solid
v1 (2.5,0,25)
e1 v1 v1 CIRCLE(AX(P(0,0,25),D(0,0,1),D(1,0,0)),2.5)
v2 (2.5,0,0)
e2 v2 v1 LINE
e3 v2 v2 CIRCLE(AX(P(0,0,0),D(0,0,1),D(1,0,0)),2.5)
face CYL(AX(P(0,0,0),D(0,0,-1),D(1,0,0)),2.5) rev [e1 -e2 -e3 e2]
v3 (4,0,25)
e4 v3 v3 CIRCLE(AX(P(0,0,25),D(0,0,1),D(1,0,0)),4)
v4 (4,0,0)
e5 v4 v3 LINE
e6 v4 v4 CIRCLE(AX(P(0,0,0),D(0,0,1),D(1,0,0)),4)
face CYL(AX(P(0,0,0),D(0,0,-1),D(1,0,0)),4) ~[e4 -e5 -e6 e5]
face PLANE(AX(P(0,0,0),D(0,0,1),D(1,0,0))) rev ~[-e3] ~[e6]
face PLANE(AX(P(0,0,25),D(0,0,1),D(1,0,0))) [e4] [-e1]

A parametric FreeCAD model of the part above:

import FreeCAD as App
import Part
import Sketcher

V = App.Vector
Q = App.Units.Quantity

doc = App.newDocument("Part")
body = doc.addObject("PartDesign::Body", "Body")

sketch1 = body.newObject("Sketcher::SketchObject", "Sketch")
sketch1.AttachmentSupport = (doc.getObject("XY_Plane"), [""])
sketch1.MapMode = "FlatFace"
sketch1.addGeometry(Part.Circle(V(0, 0, 0), V(0, 0, 1), 4), False)
sketch1.addGeometry(Part.Circle(V(0, 0, 0), V(0, 0, 1), 2.5), False)
sketch1.addConstraint(Sketcher.Constraint("Coincident", 0, 3, -1, 1))
sketch1.addConstraint(Sketcher.Constraint("Coincident", 1, 3, -1, 1))
sketch1.addConstraint(Sketcher.Constraint("Diameter", 0, Q("8 mm")))
sketch1.addConstraint(Sketcher.Constraint("Diameter", 1, Q("5 mm")))
pad1 = body.newObject("PartDesign::Pad", "Pad")
pad1.Profile = sketch1
pad1.Length = 25

doc.recompute()
